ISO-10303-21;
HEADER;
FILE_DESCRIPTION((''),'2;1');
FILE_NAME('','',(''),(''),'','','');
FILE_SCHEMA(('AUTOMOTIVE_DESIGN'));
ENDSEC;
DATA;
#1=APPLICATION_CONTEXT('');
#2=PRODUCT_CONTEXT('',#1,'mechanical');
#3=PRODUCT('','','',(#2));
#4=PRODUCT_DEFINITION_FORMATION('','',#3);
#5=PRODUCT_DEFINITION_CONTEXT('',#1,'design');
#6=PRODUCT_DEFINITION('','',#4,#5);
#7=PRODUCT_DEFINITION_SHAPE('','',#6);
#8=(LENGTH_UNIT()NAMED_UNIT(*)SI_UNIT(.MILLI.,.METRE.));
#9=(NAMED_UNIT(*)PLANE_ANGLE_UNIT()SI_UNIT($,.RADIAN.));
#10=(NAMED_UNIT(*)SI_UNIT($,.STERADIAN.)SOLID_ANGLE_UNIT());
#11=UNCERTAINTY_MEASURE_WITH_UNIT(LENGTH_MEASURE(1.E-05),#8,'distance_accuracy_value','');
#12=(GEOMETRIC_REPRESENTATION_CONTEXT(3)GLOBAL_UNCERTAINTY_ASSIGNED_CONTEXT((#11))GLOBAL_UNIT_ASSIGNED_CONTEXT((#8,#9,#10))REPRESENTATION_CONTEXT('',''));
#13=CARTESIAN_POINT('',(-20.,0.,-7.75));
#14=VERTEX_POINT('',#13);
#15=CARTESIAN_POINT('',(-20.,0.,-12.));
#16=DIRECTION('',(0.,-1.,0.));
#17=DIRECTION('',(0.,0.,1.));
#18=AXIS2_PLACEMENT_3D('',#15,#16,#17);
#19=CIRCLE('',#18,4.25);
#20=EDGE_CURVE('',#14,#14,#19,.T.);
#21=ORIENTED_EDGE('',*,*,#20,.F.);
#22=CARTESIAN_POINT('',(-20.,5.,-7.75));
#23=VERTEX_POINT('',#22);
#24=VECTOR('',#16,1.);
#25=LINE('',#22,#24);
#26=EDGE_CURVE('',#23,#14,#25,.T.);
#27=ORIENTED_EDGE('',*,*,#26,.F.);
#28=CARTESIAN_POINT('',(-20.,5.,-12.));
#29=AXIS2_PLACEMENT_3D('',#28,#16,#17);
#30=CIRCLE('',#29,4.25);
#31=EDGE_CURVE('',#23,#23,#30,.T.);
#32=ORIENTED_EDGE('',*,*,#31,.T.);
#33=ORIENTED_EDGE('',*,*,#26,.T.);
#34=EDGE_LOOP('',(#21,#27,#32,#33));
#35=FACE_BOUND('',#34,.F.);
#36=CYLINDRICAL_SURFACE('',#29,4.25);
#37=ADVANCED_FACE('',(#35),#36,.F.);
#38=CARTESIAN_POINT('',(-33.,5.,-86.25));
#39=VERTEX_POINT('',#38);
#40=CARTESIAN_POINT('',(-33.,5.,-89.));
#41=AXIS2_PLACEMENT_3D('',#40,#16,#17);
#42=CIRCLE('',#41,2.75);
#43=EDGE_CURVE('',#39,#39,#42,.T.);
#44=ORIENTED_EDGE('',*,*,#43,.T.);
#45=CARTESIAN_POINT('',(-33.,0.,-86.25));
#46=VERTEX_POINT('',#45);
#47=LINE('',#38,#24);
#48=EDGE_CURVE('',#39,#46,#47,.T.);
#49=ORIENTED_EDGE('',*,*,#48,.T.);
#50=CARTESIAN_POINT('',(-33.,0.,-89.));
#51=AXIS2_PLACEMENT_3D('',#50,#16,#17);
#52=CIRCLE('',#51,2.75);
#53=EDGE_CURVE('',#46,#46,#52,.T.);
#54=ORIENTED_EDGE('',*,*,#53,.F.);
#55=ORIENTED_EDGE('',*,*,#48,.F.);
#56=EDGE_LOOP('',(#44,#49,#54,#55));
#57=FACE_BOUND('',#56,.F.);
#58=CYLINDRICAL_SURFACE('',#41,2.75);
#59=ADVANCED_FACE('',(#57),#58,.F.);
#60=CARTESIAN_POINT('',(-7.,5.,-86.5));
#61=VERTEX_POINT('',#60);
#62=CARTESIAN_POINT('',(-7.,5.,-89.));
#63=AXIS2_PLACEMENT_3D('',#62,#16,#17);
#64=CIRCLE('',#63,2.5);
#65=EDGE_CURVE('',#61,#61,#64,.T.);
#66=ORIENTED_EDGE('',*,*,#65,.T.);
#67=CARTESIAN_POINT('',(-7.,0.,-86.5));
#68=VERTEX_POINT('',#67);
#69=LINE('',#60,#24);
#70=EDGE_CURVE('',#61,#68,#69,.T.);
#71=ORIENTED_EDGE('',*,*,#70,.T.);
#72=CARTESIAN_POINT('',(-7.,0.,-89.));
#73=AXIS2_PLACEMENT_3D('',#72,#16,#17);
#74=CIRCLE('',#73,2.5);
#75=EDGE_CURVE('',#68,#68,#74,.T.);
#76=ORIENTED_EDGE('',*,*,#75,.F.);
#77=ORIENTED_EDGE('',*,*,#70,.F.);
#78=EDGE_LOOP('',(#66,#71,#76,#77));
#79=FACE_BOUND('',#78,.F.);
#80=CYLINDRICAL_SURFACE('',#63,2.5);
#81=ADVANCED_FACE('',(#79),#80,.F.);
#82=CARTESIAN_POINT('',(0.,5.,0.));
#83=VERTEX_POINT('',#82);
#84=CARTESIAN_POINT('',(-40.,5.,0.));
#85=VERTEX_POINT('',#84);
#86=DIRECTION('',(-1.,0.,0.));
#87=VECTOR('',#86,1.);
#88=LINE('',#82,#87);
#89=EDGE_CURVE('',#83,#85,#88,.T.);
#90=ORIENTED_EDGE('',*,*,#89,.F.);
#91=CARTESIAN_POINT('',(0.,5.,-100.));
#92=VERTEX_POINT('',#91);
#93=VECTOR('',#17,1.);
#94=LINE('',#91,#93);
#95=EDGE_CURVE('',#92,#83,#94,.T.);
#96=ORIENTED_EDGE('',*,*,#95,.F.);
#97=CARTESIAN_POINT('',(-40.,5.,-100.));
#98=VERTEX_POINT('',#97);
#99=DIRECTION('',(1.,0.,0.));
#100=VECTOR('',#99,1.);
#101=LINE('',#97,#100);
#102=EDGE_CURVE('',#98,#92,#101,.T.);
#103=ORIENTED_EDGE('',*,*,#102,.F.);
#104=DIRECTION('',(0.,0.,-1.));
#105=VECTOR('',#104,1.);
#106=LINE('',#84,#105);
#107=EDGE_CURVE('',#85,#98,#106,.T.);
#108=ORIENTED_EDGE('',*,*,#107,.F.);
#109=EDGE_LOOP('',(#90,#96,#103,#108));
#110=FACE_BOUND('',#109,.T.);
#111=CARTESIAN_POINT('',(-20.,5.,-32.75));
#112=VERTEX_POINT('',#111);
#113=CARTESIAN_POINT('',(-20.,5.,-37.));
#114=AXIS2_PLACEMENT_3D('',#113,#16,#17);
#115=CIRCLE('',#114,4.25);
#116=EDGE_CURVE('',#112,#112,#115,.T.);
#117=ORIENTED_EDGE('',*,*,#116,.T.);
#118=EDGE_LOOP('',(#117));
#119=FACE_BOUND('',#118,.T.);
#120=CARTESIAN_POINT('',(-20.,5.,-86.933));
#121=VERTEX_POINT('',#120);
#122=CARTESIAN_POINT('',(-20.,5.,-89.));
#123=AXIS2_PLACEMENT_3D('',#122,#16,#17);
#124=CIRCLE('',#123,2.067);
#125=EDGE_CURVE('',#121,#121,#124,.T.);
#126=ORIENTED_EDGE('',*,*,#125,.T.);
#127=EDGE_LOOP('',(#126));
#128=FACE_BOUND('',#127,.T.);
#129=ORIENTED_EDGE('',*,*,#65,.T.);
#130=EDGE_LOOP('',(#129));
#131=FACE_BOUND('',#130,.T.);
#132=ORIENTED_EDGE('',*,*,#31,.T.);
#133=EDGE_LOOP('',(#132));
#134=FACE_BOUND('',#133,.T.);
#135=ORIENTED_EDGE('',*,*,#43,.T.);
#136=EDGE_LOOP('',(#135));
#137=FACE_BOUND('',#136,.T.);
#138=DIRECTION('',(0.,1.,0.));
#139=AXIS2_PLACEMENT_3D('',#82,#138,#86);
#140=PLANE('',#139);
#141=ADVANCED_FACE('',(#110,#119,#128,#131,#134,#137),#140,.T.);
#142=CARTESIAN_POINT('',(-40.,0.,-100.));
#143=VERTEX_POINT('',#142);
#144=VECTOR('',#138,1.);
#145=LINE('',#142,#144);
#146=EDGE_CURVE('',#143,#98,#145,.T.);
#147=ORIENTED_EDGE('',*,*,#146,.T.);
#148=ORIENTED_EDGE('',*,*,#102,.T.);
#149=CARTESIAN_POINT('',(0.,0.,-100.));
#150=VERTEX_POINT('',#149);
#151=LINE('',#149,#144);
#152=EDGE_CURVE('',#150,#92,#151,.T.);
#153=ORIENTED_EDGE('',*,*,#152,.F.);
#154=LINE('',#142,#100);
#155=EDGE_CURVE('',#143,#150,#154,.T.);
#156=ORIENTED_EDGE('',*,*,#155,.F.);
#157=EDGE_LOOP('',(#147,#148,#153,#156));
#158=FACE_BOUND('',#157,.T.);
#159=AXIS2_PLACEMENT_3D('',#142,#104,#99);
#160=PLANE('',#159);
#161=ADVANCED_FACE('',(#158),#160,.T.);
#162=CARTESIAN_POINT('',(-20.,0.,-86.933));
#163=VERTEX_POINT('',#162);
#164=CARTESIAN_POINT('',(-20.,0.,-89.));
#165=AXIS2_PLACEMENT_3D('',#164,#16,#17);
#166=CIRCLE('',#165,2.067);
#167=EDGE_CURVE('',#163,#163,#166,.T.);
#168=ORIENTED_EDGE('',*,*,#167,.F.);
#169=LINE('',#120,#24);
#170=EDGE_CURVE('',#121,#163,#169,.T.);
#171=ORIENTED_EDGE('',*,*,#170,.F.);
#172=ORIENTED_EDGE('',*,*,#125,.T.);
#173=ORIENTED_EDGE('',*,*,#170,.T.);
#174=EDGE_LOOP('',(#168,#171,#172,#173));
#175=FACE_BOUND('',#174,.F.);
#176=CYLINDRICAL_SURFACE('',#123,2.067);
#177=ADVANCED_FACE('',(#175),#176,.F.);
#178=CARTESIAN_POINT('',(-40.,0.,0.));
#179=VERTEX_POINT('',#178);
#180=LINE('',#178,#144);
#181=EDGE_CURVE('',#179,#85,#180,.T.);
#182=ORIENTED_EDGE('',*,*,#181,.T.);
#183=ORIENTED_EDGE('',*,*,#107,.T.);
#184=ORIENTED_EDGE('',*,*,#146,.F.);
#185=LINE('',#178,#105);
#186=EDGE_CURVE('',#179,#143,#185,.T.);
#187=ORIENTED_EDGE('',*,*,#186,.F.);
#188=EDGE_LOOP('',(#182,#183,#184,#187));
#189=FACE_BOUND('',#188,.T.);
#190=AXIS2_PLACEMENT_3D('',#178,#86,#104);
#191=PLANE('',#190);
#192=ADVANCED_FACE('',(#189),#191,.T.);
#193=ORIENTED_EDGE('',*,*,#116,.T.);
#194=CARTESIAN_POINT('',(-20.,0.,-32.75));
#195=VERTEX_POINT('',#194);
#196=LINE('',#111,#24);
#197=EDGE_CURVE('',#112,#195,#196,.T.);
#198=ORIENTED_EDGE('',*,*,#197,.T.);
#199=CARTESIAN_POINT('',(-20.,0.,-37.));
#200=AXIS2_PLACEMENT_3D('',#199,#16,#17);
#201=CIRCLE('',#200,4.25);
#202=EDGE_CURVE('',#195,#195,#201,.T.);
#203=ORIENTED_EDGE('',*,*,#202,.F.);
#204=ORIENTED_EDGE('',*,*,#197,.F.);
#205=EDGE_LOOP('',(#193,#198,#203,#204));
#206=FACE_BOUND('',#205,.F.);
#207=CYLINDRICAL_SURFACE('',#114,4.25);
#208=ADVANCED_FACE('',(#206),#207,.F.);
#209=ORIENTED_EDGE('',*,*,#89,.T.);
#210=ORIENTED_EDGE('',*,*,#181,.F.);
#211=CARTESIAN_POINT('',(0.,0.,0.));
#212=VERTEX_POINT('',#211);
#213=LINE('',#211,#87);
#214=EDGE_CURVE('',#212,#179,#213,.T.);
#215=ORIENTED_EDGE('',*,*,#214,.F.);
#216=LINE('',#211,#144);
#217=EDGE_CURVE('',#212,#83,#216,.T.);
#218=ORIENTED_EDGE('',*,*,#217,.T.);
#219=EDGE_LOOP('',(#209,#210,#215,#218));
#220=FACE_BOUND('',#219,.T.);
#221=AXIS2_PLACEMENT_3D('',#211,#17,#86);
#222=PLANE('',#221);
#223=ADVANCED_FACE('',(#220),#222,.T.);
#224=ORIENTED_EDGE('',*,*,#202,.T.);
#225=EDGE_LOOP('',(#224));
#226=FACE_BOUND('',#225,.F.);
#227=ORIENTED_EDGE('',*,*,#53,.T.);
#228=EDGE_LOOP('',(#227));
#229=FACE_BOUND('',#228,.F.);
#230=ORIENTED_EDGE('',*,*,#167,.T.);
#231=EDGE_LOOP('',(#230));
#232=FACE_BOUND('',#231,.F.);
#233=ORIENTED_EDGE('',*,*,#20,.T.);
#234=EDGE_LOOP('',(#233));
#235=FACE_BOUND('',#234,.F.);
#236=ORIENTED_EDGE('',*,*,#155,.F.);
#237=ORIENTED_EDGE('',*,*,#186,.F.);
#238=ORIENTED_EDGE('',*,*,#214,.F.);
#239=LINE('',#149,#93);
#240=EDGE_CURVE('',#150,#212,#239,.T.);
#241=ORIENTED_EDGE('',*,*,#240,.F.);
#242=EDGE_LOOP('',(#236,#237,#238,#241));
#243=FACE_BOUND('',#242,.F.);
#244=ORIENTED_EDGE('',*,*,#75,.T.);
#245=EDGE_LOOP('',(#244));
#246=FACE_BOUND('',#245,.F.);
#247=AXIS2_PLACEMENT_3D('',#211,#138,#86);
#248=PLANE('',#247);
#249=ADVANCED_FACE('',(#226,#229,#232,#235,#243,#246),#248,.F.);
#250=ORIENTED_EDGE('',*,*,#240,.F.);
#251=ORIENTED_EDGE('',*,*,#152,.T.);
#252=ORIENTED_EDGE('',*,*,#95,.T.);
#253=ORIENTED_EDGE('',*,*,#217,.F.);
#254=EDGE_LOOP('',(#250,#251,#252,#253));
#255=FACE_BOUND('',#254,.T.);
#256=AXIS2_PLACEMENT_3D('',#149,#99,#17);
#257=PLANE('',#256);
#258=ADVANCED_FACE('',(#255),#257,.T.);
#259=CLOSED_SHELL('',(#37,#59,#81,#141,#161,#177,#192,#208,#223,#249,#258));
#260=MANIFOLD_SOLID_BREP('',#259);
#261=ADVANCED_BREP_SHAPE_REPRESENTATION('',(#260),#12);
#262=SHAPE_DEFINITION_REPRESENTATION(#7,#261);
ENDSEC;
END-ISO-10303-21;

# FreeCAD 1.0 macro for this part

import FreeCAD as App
import Part
import Sketcher

V = App.Vector
Q = App.Units.Quantity

doc = App.newDocument("Part")
body = doc.addObject("PartDesign::Body", "Body")

sketch1 = doc.addObject("Sketcher::SketchObject", "Sketch")
body.addObject(sketch1)
sketch1.AttachmentSupport = (doc.XZ_Plane, [""])
sketch1.MapMode = "FlatFace"
sketch1.addGeometry([
    Part.LineSegment(V(-40, 0, 0), V(0, 0, 0)),
    Part.LineSegment(V(0, 0, 0), V(0, -100, 0)),
    Part.LineSegment(V(0, -100, 0), V(-40, -100, 0)),
    Part.LineSegment(V(-40, -100, 0), V(-40, 0, 0)),
], False)
sketch1.addConstraint([
    Sketcher.Constraint("Coincident", 0, 2, 1, 1),
    Sketcher.Constraint("Coincident", 1, 2, 2, 1),
    Sketcher.Constraint("Coincident", 2, 2, 3, 1),
    Sketcher.Constraint("Coincident", 3, 2, 0, 1),
    Sketcher.Constraint("Horizontal", 0),
    Sketcher.Constraint("Vertical", 1),
    Sketcher.Constraint("Horizontal", 2),
    Sketcher.Constraint("Vertical", 3),
    Sketcher.Constraint("Coincident", 0, 2, -1, 1),
    Sketcher.Constraint("DistanceX", 0, 1, 0, 2, Q("40 mm")),
    Sketcher.Constraint("DistanceY", 1, 2, 1, 1, Q("100 mm")),
])
pad1 = doc.addObject("PartDesign::Pad", "Pad")
body.addObject(pad1)
pad1.Profile = sketch1
pad1.Length = 5
pad1.Reversed = True

sketch2 = doc.addObject("Sketcher::SketchObject", "Sketch001")
body.addObject(sketch2)
sketch2.AttachmentSupport = (doc.XZ_Plane, [""])
sketch2.MapMode = "FlatFace"
sketch2.AttachmentOffset = App.Placement(V(0, 0, -5), App.Rotation())
sketch2.addGeometry(Part.Circle(V(-33, -89, 0), V(0, 0, 1), 2.8), False)
sketch2.addConstraint([
    Sketcher.Constraint("Diameter", 0, Q("5.5 mm")),
    Sketcher.Constraint("DistanceX", 0, 3, -1, 1, Q("33 mm")),
    Sketcher.Constraint("DistanceY", 0, 3, -1, 1, Q("89 mm")),
])
doc.recompute()
hole = doc.addObject("PartDesign::Hole", "Hole")
body.addObject(hole)
hole.Profile = sketch2
hole.ThreadType = "None"
hole.Diameter = 5.5
hole.DepthType = "ThroughAll"
hole.Reversed = True

sketch3 = doc.addObject("Sketcher::SketchObject", "Sketch002")
body.addObject(sketch3)
sketch3.AttachmentSupport = (doc.XZ_Plane, [""])
sketch3.MapMode = "FlatFace"
sketch3.AttachmentOffset = App.Placement(V(0, 0, -5), App.Rotation())
sketch3.addGeometry(Part.Circle(V(-20, -89, 0), V(0, 0, 1), 2.1), False)
sketch3.addConstraint([
    Sketcher.Constraint("Diameter", 0, Q("4.134 mm")),
    Sketcher.Constraint("DistanceX", 0, 3, -1, 1, Q("20 mm")),
    Sketcher.Constraint("DistanceY", 0, 3, -1, 1, Q("89 mm")),
])
doc.recompute()
hole2 = doc.addObject("PartDesign::Hole", "Hole001")
body.addObject(hole2)
hole2.Profile = sketch3
hole2.ThreadType = "None"
hole2.Diameter = 4.134
hole2.DepthType = "ThroughAll"
hole2.Reversed = True

sketch4 = doc.addObject("Sketcher::SketchObject", "Sketch003")
body.addObject(sketch4)
sketch4.AttachmentSupport = (doc.XZ_Plane, [""])
sketch4.MapMode = "FlatFace"
sketch4.AttachmentOffset = App.Placement(V(0, 0, -5), App.Rotation())
sketch4.addGeometry([
    Part.Circle(V(-20, -12, 0), V(0, 0, 1), 4.2),
    Part.Circle(V(-20, -37, 0), V(0, 0, 1), 4.2),
], False)
sketch4.addConstraint([
    Sketcher.Constraint("Equal", 0, 1),
    Sketcher.Constraint("Vertical", 0, 3, 1, 3),
    Sketcher.Constraint("Diameter", 0, Q("8.5 mm")),
    Sketcher.Constraint("DistanceX", 0, 3, -1, 1, Q("20 mm")),
    Sketcher.Constraint("DistanceY", 0, 3, -1, 1, Q("12 mm")),
    Sketcher.Constraint("DistanceY", 1, 3, -1, 1, Q("37 mm")),
])
doc.recompute()
hole3 = doc.addObject("PartDesign::Hole", "Hole002")
body.addObject(hole3)
hole3.Profile = sketch4
hole3.ThreadType = "None"
hole3.Diameter = 8.5
hole3.DepthType = "ThroughAll"
hole3.Reversed = True

sketch5 = doc.addObject("Sketcher::SketchObject", "Sketch004")
body.addObject(sketch5)
sketch5.AttachmentSupport = (doc.XZ_Plane, [""])
sketch5.MapMode = "FlatFace"
sketch5.AttachmentOffset = App.Placement(V(0, 0, -5), App.Rotation())
sketch5.addGeometry(Part.Circle(V(-7, -89, 0), V(0, 0, 1), 2.5), False)
sketch5.addConstraint([
    Sketcher.Constraint("Diameter", 0, Q("5 mm")),
    Sketcher.Constraint("DistanceX", 0, 3, -1, 1, Q("7 mm")),
    Sketcher.Constraint("DistanceY", 0, 3, -1, 1, Q("89 mm")),
])
doc.recompute()
hole4 = doc.addObject("PartDesign::Hole", "Hole003")
body.addObject(hole4)
hole4.Profile = sketch5
hole4.ThreadType = "None"
hole4.Diameter = 5
hole4.DepthType = "ThroughAll"
hole4.Reversed = True

doc.recompute()
